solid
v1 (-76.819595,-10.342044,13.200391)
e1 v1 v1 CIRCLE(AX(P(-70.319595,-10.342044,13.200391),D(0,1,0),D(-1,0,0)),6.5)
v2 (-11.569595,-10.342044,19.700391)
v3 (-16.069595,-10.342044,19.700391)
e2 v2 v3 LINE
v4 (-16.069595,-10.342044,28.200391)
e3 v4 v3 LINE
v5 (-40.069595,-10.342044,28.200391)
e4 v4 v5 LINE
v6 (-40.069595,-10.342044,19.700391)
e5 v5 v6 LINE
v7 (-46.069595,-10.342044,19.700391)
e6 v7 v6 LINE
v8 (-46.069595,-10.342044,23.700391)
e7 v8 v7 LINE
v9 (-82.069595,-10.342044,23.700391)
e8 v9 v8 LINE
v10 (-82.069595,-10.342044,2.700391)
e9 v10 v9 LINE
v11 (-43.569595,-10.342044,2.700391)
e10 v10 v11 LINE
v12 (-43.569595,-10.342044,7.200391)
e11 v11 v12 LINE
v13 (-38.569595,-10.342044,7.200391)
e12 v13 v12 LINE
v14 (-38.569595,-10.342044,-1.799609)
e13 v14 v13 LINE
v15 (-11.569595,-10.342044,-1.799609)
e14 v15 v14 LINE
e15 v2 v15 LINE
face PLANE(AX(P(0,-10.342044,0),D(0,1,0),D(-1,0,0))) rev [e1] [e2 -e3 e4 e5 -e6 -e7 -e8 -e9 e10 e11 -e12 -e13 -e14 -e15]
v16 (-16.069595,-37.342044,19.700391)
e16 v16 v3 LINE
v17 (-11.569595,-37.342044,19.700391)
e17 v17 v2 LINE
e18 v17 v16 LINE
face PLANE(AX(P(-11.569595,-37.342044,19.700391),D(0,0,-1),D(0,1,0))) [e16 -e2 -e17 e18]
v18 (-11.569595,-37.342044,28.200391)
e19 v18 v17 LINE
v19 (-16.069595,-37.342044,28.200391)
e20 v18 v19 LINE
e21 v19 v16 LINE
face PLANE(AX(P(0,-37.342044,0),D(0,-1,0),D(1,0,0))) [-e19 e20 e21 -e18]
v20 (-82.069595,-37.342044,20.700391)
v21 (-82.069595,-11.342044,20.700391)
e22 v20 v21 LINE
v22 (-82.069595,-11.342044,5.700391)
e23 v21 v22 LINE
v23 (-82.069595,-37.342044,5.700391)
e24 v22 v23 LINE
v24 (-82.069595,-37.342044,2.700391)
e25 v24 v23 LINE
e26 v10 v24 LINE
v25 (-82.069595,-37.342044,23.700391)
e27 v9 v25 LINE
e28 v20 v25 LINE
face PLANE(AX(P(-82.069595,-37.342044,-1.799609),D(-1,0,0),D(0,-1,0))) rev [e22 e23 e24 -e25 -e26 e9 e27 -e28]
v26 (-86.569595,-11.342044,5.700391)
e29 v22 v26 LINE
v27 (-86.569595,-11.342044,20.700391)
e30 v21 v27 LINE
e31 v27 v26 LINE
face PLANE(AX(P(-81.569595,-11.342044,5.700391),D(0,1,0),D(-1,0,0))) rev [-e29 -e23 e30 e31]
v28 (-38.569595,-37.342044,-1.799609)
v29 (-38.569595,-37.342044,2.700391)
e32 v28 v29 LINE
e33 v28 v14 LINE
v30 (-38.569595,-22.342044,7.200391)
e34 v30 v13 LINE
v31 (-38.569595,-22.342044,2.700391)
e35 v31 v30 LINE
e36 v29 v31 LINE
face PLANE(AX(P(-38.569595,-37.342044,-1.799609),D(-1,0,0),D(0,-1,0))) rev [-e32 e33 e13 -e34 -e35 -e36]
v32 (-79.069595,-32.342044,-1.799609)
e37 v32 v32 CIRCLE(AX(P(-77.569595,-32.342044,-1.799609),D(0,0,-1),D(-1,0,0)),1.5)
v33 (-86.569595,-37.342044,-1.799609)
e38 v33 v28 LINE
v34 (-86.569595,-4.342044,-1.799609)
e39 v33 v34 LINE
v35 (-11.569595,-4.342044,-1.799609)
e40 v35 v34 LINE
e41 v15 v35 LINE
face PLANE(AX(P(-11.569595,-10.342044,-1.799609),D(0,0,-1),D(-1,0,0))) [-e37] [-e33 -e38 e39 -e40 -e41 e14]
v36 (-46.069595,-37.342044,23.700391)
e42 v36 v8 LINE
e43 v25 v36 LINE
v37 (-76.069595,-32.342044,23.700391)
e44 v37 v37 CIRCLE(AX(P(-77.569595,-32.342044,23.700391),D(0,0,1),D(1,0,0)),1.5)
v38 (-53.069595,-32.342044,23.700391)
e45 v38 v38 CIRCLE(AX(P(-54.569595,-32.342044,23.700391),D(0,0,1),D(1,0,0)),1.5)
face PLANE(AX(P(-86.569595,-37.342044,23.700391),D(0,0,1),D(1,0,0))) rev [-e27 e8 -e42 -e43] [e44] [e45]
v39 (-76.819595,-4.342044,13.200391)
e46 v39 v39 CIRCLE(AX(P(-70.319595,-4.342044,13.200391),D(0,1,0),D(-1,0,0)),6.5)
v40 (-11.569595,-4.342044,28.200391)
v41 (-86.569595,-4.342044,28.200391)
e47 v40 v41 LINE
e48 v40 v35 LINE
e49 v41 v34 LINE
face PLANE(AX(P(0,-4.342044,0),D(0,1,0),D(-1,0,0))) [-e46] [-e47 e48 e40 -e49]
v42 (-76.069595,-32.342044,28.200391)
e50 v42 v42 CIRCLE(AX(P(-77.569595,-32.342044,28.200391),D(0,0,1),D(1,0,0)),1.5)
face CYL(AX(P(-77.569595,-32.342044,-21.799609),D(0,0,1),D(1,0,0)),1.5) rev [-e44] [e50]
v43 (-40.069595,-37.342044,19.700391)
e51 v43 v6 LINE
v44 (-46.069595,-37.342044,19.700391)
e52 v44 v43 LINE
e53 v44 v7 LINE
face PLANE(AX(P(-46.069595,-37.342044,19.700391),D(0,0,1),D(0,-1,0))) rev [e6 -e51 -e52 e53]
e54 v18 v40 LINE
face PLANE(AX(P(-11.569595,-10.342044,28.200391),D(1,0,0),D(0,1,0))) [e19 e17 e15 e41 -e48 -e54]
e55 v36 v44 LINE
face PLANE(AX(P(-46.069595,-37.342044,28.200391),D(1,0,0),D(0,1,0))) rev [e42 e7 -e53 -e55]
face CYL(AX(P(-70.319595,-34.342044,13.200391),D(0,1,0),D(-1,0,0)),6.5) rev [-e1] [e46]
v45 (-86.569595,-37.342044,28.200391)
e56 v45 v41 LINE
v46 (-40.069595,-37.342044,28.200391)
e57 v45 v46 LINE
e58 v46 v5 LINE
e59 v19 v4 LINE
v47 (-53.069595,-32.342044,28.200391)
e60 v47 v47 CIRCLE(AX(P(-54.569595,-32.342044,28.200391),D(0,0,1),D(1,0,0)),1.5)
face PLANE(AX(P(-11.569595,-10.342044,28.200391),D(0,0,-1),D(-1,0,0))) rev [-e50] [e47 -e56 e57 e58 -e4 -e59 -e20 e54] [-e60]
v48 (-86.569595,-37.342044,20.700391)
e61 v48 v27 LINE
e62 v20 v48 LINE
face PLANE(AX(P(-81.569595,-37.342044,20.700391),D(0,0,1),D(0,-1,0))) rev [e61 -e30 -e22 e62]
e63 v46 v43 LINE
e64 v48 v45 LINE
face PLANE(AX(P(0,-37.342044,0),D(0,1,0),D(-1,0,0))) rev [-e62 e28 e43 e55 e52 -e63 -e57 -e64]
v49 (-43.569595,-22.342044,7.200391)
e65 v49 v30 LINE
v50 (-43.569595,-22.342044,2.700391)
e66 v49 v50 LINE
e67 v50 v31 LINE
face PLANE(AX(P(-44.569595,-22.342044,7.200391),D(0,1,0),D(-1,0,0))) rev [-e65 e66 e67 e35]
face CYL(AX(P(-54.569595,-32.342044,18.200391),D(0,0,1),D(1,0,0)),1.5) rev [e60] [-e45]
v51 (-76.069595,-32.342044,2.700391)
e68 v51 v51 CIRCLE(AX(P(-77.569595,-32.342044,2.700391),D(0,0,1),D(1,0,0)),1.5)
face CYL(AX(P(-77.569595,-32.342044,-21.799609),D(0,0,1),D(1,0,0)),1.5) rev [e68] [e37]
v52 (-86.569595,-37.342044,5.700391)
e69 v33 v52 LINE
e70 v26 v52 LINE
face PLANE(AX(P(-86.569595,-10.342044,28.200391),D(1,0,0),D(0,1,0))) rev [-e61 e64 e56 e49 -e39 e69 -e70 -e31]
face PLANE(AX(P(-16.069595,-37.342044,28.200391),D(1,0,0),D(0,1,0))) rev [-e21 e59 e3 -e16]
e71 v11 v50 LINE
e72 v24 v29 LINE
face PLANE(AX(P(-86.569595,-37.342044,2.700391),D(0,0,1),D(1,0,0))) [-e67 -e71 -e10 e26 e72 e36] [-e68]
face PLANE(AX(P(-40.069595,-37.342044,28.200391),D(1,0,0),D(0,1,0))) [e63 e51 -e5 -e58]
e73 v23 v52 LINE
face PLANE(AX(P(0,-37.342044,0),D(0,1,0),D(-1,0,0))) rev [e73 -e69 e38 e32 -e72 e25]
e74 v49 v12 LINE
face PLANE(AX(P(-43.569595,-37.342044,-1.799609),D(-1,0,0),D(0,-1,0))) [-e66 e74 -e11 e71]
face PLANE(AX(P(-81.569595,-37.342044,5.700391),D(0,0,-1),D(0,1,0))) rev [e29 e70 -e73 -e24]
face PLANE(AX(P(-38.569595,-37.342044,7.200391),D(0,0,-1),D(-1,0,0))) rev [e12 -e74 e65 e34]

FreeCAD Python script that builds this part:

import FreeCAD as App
import Part
import Sketcher
from FreeCAD import Vector
Q = App.Units.Quantity

doc = App.newDocument("Part")
params = doc.addObject("Spreadsheet::Sheet", "Params")
for row, (alias, value) in enumerate([
    ("sketch1_width", "75 mm"),
    ("sketch1_height", "30 mm"),
    ("pad1_length", "6 mm"),
    ("sketch2_width", "48 mm"),
    ("sketch2_width2", "5 mm"),
    ("sketch2_width3", "36 mm"),
    ("sketch2_width4", "6 mm"),
    ("sketch2_height", "9 mm"),
    ("pad2_length", "27 mm"),
    ("sketch3_width", "15 mm"),
    ("sketch3_height", "4.5 mm"),
    ("pocket1_length", "6 mm"),
    ("sketch4_diameter", "13 mm"),
    ("pocket2_length", "30 mm"),
    ("sketch5_diameter", "3 mm"),
    ("pocket3_length", "50 mm"),
    ("sketch6_diameter", "3 mm"),
    ("pocket4_length", "10 mm"),
    ("sketch7_width", "26 mm"),
    ("sketch7_height", "15 mm"),
    ("pocket5_length", "5 mm"),
], start=1):
    params.set(f"A{row}", alias)
    params.set(f"B{row}", "=" + value)
    params.setAlias(f"B{row}", alias)

body = doc.addObject("PartDesign::Body", "Body")

# Sketch on XZ plane
sketch1 = body.newObject("Sketcher::SketchObject", "Sketch")
sketch1.AttachmentSupport = (doc.getObject("XZ_Plane"), [""])
sketch1.MapMode = "FlatFace"
sketch1.AttachmentOffset = App.Placement(Vector(0, 0, 4.342044), App.Rotation())
sketch1.addGeometry([
    Part.LineSegment(Vector(-87, 28, 0), Vector(-87, -2, 0)),
    Part.LineSegment(Vector(-87, -2, 0), Vector(-12, -2, 0)),
    Part.LineSegment(Vector(-12, -2, 0), Vector(-12, 28, 0)),
    Part.LineSegment(Vector(-12, 28, 0), Vector(-87, 28, 0)),
], False)
sketch1.addConstraint([
    Sketcher.Constraint("Coincident", 0, 2, 1, 1),
    Sketcher.Constraint("Coincident", 1, 2, 2, 1),
    Sketcher.Constraint("Coincident", 2, 2, 3, 1),
    Sketcher.Constraint("Coincident", 3, 2, 0, 1),
    Sketcher.Constraint("Vertical", 0),
    Sketcher.Constraint("Horizontal", 1),
    Sketcher.Constraint("Vertical", 2),
    Sketcher.Constraint("Horizontal", 3),
    Sketcher.Constraint("DistanceX", 1, 1, 1, 2, Q("75 mm")),
    Sketcher.Constraint("DistanceY", 0, 2, 0, 1, Q("30 mm")),
    Sketcher.Constraint("DistanceY", 0, 2, -1, 1, Q("1.799609 mm")),
    Sketcher.Constraint("DistanceX", 0, 2, -1, 1, Q("86.569595 mm")),
])
sketch1.setExpression("Constraints[8]", "Params.sketch1_width")
sketch1.setExpression("Constraints[9]", "Params.sketch1_height")
pad1 = body.newObject("PartDesign::Pad", "Pad")
pad1.Profile = sketch1
pad1.setExpression("Length", "Params.pad1_length")

# Sketch on XZ plane
sketch2 = body.newObject("Sketcher::SketchObject", "Sketch001")
sketch2.AttachmentSupport = (doc.getObject("XZ_Plane"), [""])
sketch2.MapMode = "FlatFace"
sketch2.AttachmentOffset = App.Placement(Vector(0, 0, 10.342044), App.Rotation())
sketch2.addGeometry([
    Part.LineSegment(Vector(-86.6, -1.8, 0), Vector(-38.6, -1.8, 0)),  # 0
    Part.LineSegment(Vector(-38.6, -1.8, 0), Vector(-38.6, 7.2, 0)),  # 1
    Part.LineSegment(Vector(-38.6, 7.2, 0), Vector(-43.6, 7.2, 0)),  # 2
    Part.LineSegment(Vector(-43.6, 7.2, 0), Vector(-43.6, 2.7, 0)),  # 3
    Part.LineSegment(Vector(-43.6, 2.7, 0), Vector(-82.1, 2.7, 0)),  # 4
    Part.LineSegment(Vector(-82.1, 2.7, 0), Vector(-82.1, 23.7, 0)),  # 5
    Part.LineSegment(Vector(-82.1, 23.7, 0), Vector(-46.1, 23.7, 0)),  # 6
    Part.LineSegment(Vector(-46.1, 23.7, 0), Vector(-46.1, 19.7, 0)),  # 7
    Part.LineSegment(Vector(-46.1, 19.7, 0), Vector(-40.1, 19.7, 0)),  # 8
    Part.LineSegment(Vector(-40.1, 19.7, 0), Vector(-40.1, 28.2, 0)),  # 9
    Part.LineSegment(Vector(-40.1, 28.2, 0), Vector(-86.6, 28.2, 0)),  # 10
    Part.LineSegment(Vector(-86.6, 28.2, 0), Vector(-86.6, -1.8, 0)),  # 11
    Part.LineSegment(Vector(-11.6, 19.7, 0), Vector(-11.6, 28.2, 0)),  # 12
    Part.LineSegment(Vector(-11.6, 28.2, 0), Vector(-16.1, 28.2, 0)),  # 13
    Part.LineSegment(Vector(-16.1, 28.2, 0), Vector(-16.1, 19.7, 0)),  # 14
    Part.LineSegment(Vector(-16.1, 19.7, 0), Vector(-11.6, 19.7, 0)),  # 15
], False)
sketch2.addConstraint([
    Sketcher.Constraint("Coincident", 0, 2, 1, 1),
    Sketcher.Constraint("Coincident", 1, 2, 2, 1),
    Sketcher.Constraint("Coincident", 2, 2, 3, 1),
    Sketcher.Constraint("Coincident", 3, 2, 4, 1),
    Sketcher.Constraint("Coincident", 4, 2, 5, 1),
    Sketcher.Constraint("Coincident", 5, 2, 6, 1),
    Sketcher.Constraint("Coincident", 6, 2, 7, 1),
    Sketcher.Constraint("Coincident", 7, 2, 8, 1),
    Sketcher.Constraint("Coincident", 8, 2, 9, 1),
    Sketcher.Constraint("Coincident", 9, 2, 10, 1),
    Sketcher.Constraint("Coincident", 10, 2, 11, 1),
    Sketcher.Constraint("Coincident", 11, 2, 0, 1),
    Sketcher.Constraint("Coincident", 12, 2, 13, 1),
    Sketcher.Constraint("Coincident", 13, 2, 14, 1),
    Sketcher.Constraint("Coincident", 14, 2, 15, 1),
    Sketcher.Constraint("Coincident", 15, 2, 12, 1),
    Sketcher.Constraint("Horizontal", 0),
    Sketcher.Constraint("Vertical", 1),
    Sketcher.Constraint("Horizontal", 2),
    Sketcher.Constraint("Vertical", 3),
    Sketcher.Constraint("Horizontal", 4),
    Sketcher.Constraint("Vertical", 5),
    Sketcher.Constraint("Horizontal", 6),
    Sketcher.Constraint("Vertical", 7),
    Sketcher.Constraint("Horizontal", 8),
    Sketcher.Constraint("Vertical", 9),
    Sketcher.Constraint("Horizontal", 10),
    Sketcher.Constraint("Vertical", 11),
    Sketcher.Constraint("Vertical", 12),
    Sketcher.Constraint("Horizontal", 13),
    Sketcher.Constraint("Vertical", 14),
    Sketcher.Constraint("Horizontal", 15),
    Sketcher.Constraint("Horizontal", 10, 2, 12, 2),
    Sketcher.Constraint("Horizontal", 8, 2, 14, 2),
    Sketcher.Constraint("Equal", 15, 3),
    Sketcher.Constraint("DistanceX", 0, 1, 0, 2, Q("48 mm")),
    Sketcher.Constraint("DistanceX", 2, 2, 2, 1, Q("5 mm")),
    Sketcher.Constraint("DistanceX", 6, 1, 6, 2, Q("36 mm")),
    Sketcher.Constraint("DistanceX", 8, 1, 8, 2, Q("6 mm")),
    Sketcher.Constraint("DistanceY", 1, 1, 1, 2, Q("9 mm")),
    Sketcher.Constraint("DistanceY", 5, 1, 5, 2, Q("21 mm")),
    Sketcher.Constraint("DistanceY", 7, 2, 7, 1, Q("4 mm")),
    Sketcher.Constraint("DistanceY", 11, 2, 11, 1, Q("30 mm")),
    Sketcher.Constraint("DistanceX", 4, 2, 4, 1, Q("38.5 mm")),
    Sketcher.Constraint("DistanceX", 13, 2, 13, 1, Q("4.5 mm")),
    Sketcher.Constraint("DistanceX", 1, 2, 12, 2, Q("27 mm")),
    Sketcher.Constraint("DistanceY", 0, 2, -1, 1, Q("1.799609 mm")),
    Sketcher.Constraint("DistanceX", 0, 2, -1, 1, Q("38.569595 mm")),
])
sketch2.setExpression("Constraints[35]", "Params.sketch2_width")
sketch2.setExpression("Constraints[36]", "Params.sketch2_width2")
sketch2.setExpression("Constraints[37]", "Params.sketch2_width3")
sketch2.setExpression("Constraints[38]", "Params.sketch2_width4")
sketch2.setExpression("Constraints[39]", "Params.sketch2_height")
pad2 = body.newObject("PartDesign::Pad", "Pad001")
pad2.Profile = sketch2
pad2.setExpression("Length", "Params.pad2_length")

# Sketch on YZ plane
sketch3 = body.newObject("Sketcher::SketchObject", "Sketch002")
sketch3.AttachmentSupport = (doc.getObject("YZ_Plane"), [""])
sketch3.MapMode = "FlatFace"
sketch3.AttachmentOffset = App.Placement(Vector(0, 0, -38.569595), App.Rotation())
sketch3.addGeometry([
    Part.LineSegment(Vector(-22.3, 7.2, 0), Vector(-37.3, 7.2, 0)),
    Part.LineSegment(Vector(-37.3, 7.2, 0), Vector(-37.3, 2.7, 0)),
    Part.LineSegment(Vector(-37.3, 2.7, 0), Vector(-22.3, 2.7, 0)),
    Part.LineSegment(Vector(-22.3, 2.7, 0), Vector(-22.3, 7.2, 0)),
], False)
sketch3.addConstraint([
    Sketcher.Constraint("Coincident", 0, 2, 1, 1),
    Sketcher.Constraint("Coincident", 1, 2, 2, 1),
    Sketcher.Constraint("Coincident", 2, 2, 3, 1),
    Sketcher.Constraint("Coincident", 3, 2, 0, 1),
    Sketcher.Constraint("Horizontal", 0),
    Sketcher.Constraint("Vertical", 1),
    Sketcher.Constraint("Horizontal", 2),
    Sketcher.Constraint("Vertical", 3),
    Sketcher.Constraint("DistanceX", 0, 2, 0, 1, Q("15 mm")),
    Sketcher.Constraint("DistanceY", 1, 2, 1, 1, Q("4.5 mm")),
    Sketcher.Constraint("DistanceY", -1, 1, 0, 2, Q("7.200391 mm")),
    Sketcher.Constraint("DistanceX", 0, 2, -1, 1, Q("37.342044 mm")),
])
sketch3.setExpression("Constraints[8]", "Params.sketch3_width")
sketch3.setExpression("Constraints[9]", "Params.sketch3_height")
pocket1 = body.newObject("PartDesign::Pocket", "Pocket")
pocket1.Profile = sketch3
pocket1.setExpression("Length", "Params.pocket1_length")

# Sketch on XZ plane
sketch4 = body.newObject("Sketcher::SketchObject", "Sketch003")
sketch4.AttachmentSupport = (doc.getObject("XZ_Plane"), [""])
sketch4.MapMode = "FlatFace"
sketch4.AttachmentOffset = App.Placement(Vector(0, 0, 4.342044), App.Rotation())
sketch4.addGeometry(Part.Circle(Vector(-70, 13, 0), Vector(0, 0, 1), 6), False)
sketch4.addConstraint([
    Sketcher.Constraint("Diameter", 0, Q("13 mm")),
    Sketcher.Constraint("DistanceY", -1, 1, 0, 3, Q("13.200391 mm")),
    Sketcher.Constraint("DistanceX", 0, 3, -1, 1, Q("70.319595 mm")),
])
sketch4.setExpression("Constraints[0]", "Params.sketch4_diameter")
pocket2 = body.newObject("PartDesign::Pocket", "Pocket001")
pocket2.Profile = sketch4
pocket2.setExpression("Length", "Params.pocket2_length")
pocket2.Reversed = True

# Sketch on XY plane
sketch5 = body.newObject("Sketcher::SketchObject", "Sketch004")
sketch5.AttachmentSupport = (doc.getObject("XY_Plane"), [""])
sketch5.MapMode = "FlatFace"
sketch5.AttachmentOffset = App.Placement(Vector(0, 0, 28.200391), App.Rotation())
sketch5.addGeometry(Part.Circle(Vector(-77.6, -32.3, 0), Vector(0, 0, 1), 1.5), False)
sketch5.addConstraint([
    Sketcher.Constraint("Diameter", 0, Q("3 mm")),
    Sketcher.Constraint("DistanceX", 0, 3, -1, 1, Q("77.569595 mm")),
    Sketcher.Constraint("DistanceY", 0, 3, -1, 1, Q("32.342044 mm")),
])
sketch5.setExpression("Constraints[0]", "Params.sketch5_diameter")
pocket3 = body.newObject("PartDesign::Pocket", "Pocket002")
pocket3.Profile = sketch5
pocket3.setExpression("Length", "Params.pocket3_length")

# Sketch on XY plane
sketch6 = body.newObject("Sketcher::SketchObject", "Sketch005")
sketch6.AttachmentSupport = (doc.getObject("XY_Plane"), [""])
sketch6.MapMode = "FlatFace"
sketch6.AttachmentOffset = App.Placement(Vector(0, 0, 28.200391), App.Rotation())
sketch6.addGeometry(Part.Circle(Vector(-54.6, -32.3, 0), Vector(0, 0, 1), 1.5), False)
sketch6.addConstraint([
    Sketcher.Constraint("Diameter", 0, Q("3 mm")),
    Sketcher.Constraint("DistanceX", 0, 3, -1, 1, Q("54.569595 mm")),
    Sketcher.Constraint("DistanceY", 0, 3, -1, 1, Q("32.342044 mm")),
])
sketch6.setExpression("Constraints[0]", "Params.sketch6_diameter")
pocket4 = body.newObject("PartDesign::Pocket", "Pocket003")
pocket4.Profile = sketch6
pocket4.setExpression("Length", "Params.pocket4_length")

# Sketch on YZ plane
sketch7 = body.newObject("Sketcher::SketchObject", "Sketch006")
sketch7.AttachmentSupport = (doc.getObject("YZ_Plane"), [""])
sketch7.MapMode = "FlatFace"
sketch7.AttachmentOffset = App.Placement(Vector(0, 0, -86.569595), App.Rotation())
sketch7.addGeometry([
    Part.LineSegment(Vector(-11, 6, 0), Vector(-37, 6, 0)),
    Part.LineSegment(Vector(-37, 6, 0), Vector(-37, 21, 0)),
    Part.LineSegment(Vector(-37, 21, 0), Vector(-11, 21, 0)),
    Part.LineSegment(Vector(-11, 21, 0), Vector(-11, 6, 0)),
], False)
sketch7.addConstraint([
    Sketcher.Constraint("Coincident", 0, 2, 1, 1),
    Sketcher.Constraint("Coincident", 1, 2, 2, 1),
    Sketcher.Constraint("Coincident", 2, 2, 3, 1),
    Sketcher.Constraint("Coincident", 3, 2, 0, 1),
    Sketcher.Constraint("Horizontal", 0),
    Sketcher.Constraint("Vertical", 1),
    Sketcher.Constraint("Horizontal", 2),
    Sketcher.Constraint("Vertical", 3),
    Sketcher.Constraint("DistanceX", 0, 2, 0, 1, Q("26 mm")),
    Sketcher.Constraint("DistanceY", 1, 1, 1, 2, Q("15 mm")),
    Sketcher.Constraint("DistanceY", -1, 1, 0, 2, Q("5.700391 mm")),
    Sketcher.Constraint("DistanceX", 0, 2, -1, 1, Q("37.342044 mm")),
])
sketch7.setExpression("Constraints[8]", "Params.sketch7_width")
sketch7.setExpression("Constraints[9]", "Params.sketch7_height")
pocket5 = body.newObject("PartDesign::Pocket", "Pocket004")
pocket5.Profile = sketch7
pocket5.setExpression("Length", "Params.pocket5_length")
pocket5.Reversed = True

doc.recompute()
